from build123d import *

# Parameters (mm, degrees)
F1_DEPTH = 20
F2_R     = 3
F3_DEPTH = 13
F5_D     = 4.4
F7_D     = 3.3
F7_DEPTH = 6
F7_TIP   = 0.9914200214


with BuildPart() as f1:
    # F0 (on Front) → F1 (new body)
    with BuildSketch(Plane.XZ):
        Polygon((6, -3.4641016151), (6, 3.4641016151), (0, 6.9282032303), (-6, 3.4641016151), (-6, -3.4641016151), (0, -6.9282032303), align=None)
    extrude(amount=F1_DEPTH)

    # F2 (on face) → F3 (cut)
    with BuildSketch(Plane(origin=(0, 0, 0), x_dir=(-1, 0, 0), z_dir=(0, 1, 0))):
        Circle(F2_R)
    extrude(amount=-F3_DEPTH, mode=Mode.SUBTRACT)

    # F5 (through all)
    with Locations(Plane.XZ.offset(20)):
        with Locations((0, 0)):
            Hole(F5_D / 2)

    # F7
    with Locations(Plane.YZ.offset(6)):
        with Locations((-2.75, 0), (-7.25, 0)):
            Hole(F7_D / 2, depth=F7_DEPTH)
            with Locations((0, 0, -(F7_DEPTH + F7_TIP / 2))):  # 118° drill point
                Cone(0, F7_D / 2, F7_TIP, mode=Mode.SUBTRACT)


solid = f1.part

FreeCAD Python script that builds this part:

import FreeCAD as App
import Part
import Sketcher

V = App.Vector
Q = App.Units.Quantity

doc = App.newDocument("Part")
body = doc.addObject("PartDesign::Body", "Body")

sketch1 = body.newObject("Sketcher::SketchObject", "Sketch")
sketch1.AttachmentSupport = (doc.getObject("XZ_Plane"), [""])
sketch1.MapMode = "FlatFace"
sketch1.addGeometry(Part.LineSegment(V(6, -3, 0), V(6, 3, 0)), False)
sketch1.addGeometry(Part.LineSegment(V(6, 3, 0), V(0, 7, 0)), False)
sketch1.addGeometry(Part.LineSegment(V(0, 7, 0), V(-6, 3, 0)), False)
sketch1.addGeometry(Part.LineSegment(V(-6, 3, 0), V(-6, -3, 0)), False)
sketch1.addGeometry(Part.LineSegment(V(-6, -3, 0), V(0, -7, 0)), False)
sketch1.addGeometry(Part.LineSegment(V(0, -7, 0), V(6, -3, 0)), False)
sketch1.addConstraint(Sketcher.Constraint("Coincident", 0, 2, 1, 1))
sketch1.addConstraint(Sketcher.Constraint("Coincident", 1, 2, 2, 1))
sketch1.addConstraint(Sketcher.Constraint("Coincident", 2, 2, 3, 1))
sketch1.addConstraint(Sketcher.Constraint("Coincident", 3, 2, 4, 1))
sketch1.addConstraint(Sketcher.Constraint("Coincident", 4, 2, 5, 1))
sketch1.addConstraint(Sketcher.Constraint("Coincident", 5, 2, 0, 1))
sketch1.addConstraint(Sketcher.Constraint("Vertical", 0))
sketch1.addConstraint(Sketcher.Constraint("Vertical", 3))
sketch1.addConstraint(Sketcher.Constraint("Symmetric", 0, 2, 3, 2, -1, 1))
sketch1.addConstraint(Sketcher.Constraint("Symmetric", 1, 2, 4, 2, -1, 1))
sketch1.addConstraint(Sketcher.Constraint("PointOnObject", 1, 2, -2))
sketch1.addConstraint(Sketcher.Constraint("Parallel", 2, 5))
sketch1.addConstraint(Sketcher.Constraint("Horizontal", 0, 2, 2, 2))
sketch1.addConstraint(Sketcher.Constraint("Angle", 1, Q("150 deg")))
sketch1.addConstraint(Sketcher.Constraint("DistanceX", -1, 1, 0, 2, 6.0))
sketch1.addConstraint(Sketcher.Constraint("DistanceY", -1, 1, 0, 2, 3.464102))
pad1 = body.newObject("PartDesign::Pad", "Pad")
pad1.Profile = sketch1
pad1.Length = 20

sketch2 = body.newObject("Sketcher::SketchObject", "Sketch001")
sketch2.AttachmentSupport = (doc.getObject("XZ_Plane"), [""])
sketch2.MapMode = "FlatFace"
sketch2.addGeometry(Part.Circle(V(0, 0, 0), V(0, 0, 1), 3), False)
sketch2.addConstraint(Sketcher.Constraint("Coincident", 0, 3, -1, 1))
sketch2.addConstraint(Sketcher.Constraint("Diameter", 0, 6.0))
pocket1 = body.newObject("PartDesign::Pocket", "Pocket")
pocket1.Profile = sketch2
pocket1.Length = 13
pocket1.Reversed = True

sketch3 = body.newObject("Sketcher::SketchObject", "Sketch002")
sketch3.AttachmentSupport = (doc.getObject("XZ_Plane"), [""])
sketch3.MapMode = "FlatFace"
sketch3.AttachmentOffset = App.Placement(V(0, 0, 20), App.Rotation())
sketch3.addGeometry(Part.Circle(V(0, 0, 0), V(0, 0, 1), 2.2), False)
sketch3.addConstraint(Sketcher.Constraint("Coincident", 0, 3, -1, 1))
sketch3.addConstraint(Sketcher.Constraint("Diameter", 0, 4.4))
doc.recompute()
hole = body.newObject("PartDesign::Hole", "Hole")
hole.Profile = sketch3
hole.ThreadType = "None"
hole.Diameter = 4.4
hole.DepthType = "ThroughAll"

sketch4 = body.newObject("Sketcher::SketchObject", "Sketch003")
sketch4.AttachmentSupport = (doc.getObject("YZ_Plane"), [""])
sketch4.MapMode = "FlatFace"
sketch4.AttachmentOffset = App.Placement(V(0, 0, 6), App.Rotation())
sketch4.addGeometry(Part.Circle(V(-2.8, 0, 0), V(0, 0, 1), 1.6), False)
sketch4.addGeometry(Part.Circle(V(-7.2, 0, 0), V(0, 0, 1), 1.6), False)
sketch4.addConstraint(Sketcher.Constraint("Equal", 0, 1))
sketch4.addConstraint(Sketcher.Constraint("PointOnObject", 0, 3, -1))
sketch4.addConstraint(Sketcher.Constraint("PointOnObject", 1, 3, -1))
sketch4.addConstraint(Sketcher.Constraint("Diameter", 0, 3.3))
sketch4.addConstraint(Sketcher.Constraint("DistanceX", 1, 3, 0, 3, 4.5))
sketch4.addConstraint(Sketcher.Constraint("DistanceX", 0, 3, -1, 1, 2.75))
doc.recompute()
hole2 = body.newObject("PartDesign::Hole", "Hole001")
hole2.Profile = sketch4
hole2.ThreadType = "None"
hole2.Diameter = 3.3
hole2.DepthType = "Dimension"
hole2.Depth = 6
hole2.DrillPoint = "Angled"
hole2.DrillPointAngle = 118

doc.recompute()
